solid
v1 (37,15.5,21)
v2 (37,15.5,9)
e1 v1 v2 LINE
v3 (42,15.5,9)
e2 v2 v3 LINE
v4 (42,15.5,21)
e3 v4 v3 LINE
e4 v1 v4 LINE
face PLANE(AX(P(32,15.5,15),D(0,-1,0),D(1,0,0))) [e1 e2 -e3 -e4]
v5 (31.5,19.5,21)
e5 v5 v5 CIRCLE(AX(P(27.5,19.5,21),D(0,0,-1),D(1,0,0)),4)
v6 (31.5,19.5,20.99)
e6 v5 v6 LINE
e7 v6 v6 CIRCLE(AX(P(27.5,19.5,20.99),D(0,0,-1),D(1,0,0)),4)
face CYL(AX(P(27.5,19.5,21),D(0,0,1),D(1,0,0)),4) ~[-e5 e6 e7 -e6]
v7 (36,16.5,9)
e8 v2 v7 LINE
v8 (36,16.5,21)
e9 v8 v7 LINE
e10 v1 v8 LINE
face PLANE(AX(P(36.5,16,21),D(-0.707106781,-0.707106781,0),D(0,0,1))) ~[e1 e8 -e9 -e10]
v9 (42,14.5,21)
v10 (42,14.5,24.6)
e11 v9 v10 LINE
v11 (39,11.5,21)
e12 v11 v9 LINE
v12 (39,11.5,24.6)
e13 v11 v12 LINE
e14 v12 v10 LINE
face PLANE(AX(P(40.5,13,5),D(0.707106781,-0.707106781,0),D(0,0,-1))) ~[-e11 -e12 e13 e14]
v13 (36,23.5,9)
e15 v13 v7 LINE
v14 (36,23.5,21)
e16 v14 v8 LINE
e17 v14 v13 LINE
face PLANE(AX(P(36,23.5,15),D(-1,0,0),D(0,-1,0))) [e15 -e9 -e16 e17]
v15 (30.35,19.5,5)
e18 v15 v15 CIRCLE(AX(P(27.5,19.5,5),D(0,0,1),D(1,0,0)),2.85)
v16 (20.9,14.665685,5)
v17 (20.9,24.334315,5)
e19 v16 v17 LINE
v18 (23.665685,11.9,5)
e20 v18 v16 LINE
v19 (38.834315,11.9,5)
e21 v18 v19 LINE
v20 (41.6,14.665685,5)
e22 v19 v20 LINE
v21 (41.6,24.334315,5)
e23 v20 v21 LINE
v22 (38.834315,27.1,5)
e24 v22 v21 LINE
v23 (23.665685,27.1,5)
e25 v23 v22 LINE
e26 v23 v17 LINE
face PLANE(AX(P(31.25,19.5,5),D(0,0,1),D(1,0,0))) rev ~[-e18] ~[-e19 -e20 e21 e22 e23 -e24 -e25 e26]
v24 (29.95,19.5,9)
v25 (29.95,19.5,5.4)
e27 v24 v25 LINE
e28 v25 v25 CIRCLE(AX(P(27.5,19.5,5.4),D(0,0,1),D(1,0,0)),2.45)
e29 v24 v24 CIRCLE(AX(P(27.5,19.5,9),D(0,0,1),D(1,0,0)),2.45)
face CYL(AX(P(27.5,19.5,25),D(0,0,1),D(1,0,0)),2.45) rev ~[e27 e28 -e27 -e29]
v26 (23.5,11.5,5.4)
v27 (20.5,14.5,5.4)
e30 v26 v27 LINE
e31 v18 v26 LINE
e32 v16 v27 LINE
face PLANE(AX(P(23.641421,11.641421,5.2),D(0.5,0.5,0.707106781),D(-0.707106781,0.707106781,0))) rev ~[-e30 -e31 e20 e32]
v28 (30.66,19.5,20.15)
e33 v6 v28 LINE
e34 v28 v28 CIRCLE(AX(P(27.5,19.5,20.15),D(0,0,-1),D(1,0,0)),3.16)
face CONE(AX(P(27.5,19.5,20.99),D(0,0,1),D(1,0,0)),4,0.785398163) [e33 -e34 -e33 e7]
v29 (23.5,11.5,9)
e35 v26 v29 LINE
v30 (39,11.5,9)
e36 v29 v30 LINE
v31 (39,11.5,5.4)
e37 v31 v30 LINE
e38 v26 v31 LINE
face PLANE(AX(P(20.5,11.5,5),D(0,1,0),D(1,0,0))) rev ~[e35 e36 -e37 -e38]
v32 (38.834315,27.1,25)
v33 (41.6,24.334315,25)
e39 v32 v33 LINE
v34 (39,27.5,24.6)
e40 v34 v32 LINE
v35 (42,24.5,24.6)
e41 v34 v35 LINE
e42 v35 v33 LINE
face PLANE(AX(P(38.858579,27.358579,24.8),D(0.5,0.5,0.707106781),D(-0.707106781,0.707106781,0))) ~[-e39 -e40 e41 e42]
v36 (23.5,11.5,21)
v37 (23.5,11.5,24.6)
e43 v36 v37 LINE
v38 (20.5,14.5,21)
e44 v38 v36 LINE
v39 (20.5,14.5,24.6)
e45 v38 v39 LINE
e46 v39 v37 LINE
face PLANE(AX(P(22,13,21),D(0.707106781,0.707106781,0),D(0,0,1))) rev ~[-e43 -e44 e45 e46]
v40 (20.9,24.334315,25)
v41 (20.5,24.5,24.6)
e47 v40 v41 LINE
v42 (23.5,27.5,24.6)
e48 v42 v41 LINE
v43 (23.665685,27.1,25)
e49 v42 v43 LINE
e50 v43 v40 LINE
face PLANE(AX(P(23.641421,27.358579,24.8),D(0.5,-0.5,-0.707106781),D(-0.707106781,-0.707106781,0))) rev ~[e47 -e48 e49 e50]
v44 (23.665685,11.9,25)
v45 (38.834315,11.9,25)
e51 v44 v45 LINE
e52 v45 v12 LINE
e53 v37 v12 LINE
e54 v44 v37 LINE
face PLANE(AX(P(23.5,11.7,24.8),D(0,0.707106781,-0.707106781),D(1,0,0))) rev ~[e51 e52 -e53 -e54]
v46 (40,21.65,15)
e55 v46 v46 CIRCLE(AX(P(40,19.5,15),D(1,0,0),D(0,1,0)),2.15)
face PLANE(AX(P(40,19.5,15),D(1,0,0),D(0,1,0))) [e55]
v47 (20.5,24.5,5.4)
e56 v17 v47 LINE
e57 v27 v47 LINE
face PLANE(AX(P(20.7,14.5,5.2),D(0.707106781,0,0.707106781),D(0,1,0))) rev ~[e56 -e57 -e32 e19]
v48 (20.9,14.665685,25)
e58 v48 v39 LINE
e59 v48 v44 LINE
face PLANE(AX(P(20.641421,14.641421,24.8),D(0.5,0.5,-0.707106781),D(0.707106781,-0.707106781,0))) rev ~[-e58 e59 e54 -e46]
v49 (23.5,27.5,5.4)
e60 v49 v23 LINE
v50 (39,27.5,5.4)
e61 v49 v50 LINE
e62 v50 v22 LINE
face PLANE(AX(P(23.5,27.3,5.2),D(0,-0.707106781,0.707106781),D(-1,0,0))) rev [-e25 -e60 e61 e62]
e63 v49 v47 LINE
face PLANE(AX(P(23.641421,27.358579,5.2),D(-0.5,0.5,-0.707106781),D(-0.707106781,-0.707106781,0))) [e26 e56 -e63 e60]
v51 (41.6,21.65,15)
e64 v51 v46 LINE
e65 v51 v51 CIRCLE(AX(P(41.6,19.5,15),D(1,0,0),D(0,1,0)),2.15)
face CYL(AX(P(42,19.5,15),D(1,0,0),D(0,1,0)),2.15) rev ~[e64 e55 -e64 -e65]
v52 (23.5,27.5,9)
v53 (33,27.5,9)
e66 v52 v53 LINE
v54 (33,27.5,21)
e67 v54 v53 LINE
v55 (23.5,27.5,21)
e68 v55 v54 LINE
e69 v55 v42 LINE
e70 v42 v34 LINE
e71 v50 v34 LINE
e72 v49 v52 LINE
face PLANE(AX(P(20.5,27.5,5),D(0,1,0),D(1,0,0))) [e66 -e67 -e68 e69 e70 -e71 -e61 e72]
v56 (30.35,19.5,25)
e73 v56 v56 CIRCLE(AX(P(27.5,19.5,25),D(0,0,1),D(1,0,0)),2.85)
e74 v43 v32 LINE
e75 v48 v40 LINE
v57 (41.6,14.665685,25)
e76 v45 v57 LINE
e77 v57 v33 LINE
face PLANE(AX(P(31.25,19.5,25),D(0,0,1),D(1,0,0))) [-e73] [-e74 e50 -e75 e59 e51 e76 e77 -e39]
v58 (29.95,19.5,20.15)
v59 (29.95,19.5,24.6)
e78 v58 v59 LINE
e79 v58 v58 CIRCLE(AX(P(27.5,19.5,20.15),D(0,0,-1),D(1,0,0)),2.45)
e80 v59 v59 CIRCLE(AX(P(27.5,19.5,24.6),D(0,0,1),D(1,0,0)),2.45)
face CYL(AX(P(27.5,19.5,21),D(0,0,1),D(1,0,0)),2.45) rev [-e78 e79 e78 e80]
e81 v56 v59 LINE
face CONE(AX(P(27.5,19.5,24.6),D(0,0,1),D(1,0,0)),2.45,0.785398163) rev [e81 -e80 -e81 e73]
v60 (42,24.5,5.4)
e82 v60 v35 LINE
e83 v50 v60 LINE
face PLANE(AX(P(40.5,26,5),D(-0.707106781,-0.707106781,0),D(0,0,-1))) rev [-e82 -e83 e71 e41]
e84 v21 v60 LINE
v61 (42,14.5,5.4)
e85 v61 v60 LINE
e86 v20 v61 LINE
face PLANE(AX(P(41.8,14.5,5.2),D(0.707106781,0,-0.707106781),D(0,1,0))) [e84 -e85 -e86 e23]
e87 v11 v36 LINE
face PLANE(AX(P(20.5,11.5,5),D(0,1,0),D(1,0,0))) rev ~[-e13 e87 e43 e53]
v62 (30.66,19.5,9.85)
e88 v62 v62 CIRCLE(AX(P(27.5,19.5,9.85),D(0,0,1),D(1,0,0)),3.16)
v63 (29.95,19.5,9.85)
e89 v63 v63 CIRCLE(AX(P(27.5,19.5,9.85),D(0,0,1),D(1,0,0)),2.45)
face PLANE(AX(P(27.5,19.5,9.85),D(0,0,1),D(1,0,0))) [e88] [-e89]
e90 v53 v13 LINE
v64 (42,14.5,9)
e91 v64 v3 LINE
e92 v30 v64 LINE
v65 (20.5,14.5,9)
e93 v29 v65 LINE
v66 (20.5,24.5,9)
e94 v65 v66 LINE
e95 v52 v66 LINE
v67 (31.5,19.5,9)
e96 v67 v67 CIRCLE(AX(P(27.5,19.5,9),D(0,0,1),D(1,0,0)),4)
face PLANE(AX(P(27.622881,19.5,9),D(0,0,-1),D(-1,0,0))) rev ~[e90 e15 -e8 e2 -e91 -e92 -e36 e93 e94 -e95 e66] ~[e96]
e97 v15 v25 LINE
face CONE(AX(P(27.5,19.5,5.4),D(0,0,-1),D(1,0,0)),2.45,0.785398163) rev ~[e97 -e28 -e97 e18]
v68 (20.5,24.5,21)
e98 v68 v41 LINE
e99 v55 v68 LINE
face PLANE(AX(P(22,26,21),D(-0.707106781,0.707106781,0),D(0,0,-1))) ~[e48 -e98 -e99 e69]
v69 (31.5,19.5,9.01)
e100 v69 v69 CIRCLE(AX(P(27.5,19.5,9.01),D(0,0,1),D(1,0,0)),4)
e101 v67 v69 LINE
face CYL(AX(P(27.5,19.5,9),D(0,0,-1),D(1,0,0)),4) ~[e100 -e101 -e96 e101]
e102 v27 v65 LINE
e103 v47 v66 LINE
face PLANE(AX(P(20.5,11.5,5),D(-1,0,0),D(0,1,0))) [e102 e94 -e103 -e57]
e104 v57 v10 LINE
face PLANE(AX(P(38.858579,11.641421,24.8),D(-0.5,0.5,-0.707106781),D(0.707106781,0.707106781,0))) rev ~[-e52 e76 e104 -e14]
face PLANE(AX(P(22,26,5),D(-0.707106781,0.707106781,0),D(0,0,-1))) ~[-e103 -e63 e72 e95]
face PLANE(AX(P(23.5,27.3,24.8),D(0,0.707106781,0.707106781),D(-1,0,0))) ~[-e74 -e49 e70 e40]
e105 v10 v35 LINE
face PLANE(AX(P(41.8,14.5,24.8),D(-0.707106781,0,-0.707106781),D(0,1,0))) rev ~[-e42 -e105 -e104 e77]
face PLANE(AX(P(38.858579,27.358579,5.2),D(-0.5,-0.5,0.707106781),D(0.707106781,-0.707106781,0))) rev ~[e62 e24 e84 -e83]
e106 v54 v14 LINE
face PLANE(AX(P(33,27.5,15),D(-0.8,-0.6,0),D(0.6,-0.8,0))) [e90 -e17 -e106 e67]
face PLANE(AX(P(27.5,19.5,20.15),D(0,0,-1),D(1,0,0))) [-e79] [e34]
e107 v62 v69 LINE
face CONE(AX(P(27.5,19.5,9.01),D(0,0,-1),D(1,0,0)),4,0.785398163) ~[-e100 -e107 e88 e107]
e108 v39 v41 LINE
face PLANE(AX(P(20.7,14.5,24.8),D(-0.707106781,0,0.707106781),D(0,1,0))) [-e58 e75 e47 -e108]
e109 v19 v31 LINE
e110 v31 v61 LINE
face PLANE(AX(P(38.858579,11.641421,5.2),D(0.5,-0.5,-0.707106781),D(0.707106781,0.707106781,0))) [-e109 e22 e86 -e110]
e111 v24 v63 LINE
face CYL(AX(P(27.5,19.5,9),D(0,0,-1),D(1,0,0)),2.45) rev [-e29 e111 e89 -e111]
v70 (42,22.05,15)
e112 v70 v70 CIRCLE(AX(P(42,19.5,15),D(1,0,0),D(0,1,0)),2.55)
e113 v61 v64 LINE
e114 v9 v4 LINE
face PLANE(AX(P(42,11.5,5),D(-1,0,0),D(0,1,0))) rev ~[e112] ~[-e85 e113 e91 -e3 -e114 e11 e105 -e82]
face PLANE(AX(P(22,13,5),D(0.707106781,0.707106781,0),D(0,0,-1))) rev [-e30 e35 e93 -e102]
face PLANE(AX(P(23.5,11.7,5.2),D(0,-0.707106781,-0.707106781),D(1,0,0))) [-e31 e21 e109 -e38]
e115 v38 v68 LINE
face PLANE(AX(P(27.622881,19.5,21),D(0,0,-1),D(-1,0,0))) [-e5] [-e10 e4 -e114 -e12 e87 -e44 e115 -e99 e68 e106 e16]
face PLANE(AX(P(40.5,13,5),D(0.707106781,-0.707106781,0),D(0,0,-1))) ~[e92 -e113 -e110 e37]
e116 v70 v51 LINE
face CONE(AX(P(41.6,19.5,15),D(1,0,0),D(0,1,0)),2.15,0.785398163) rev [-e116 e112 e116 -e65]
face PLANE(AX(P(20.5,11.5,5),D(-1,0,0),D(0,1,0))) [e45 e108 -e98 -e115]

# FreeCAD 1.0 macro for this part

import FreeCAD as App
import Part
import Sketcher


def edges_at(feature, points):
    """Names of the edges that pass closest to the given points."""
    edges = feature.Shape.Edges
    near = lambda p: min(range(len(edges)), key=lambda i: edges[i].distToShape(Part.Vertex(*p))[0])
    return sorted({f"Edge{near(p) + 1}" for p in points})


def add_polygon(sketch, points):
    """Adds a closed chain of lines whose ends are joined by coincident constraints."""
    first, n = sketch.GeometryCount, len(points)
    for a, b in zip(points, points[1:] + points[:1]):
        sketch.addGeometry(Part.LineSegment(App.Vector(*a, 0), App.Vector(*b, 0)), False)
    for i in range(n):
        sketch.addConstraint(Sketcher.Constraint("Coincident", first + i, 2, first + (i + 1) % n, 1))

doc = App.newDocument("Part")
body = doc.addObject("PartDesign::Body", "Body")

sketch1 = body.newObject("Sketcher::SketchObject", "Sketch")
sketch1.AttachmentSupport = (doc.getObject("XY_Plane"), [""])
sketch1.MapMode = "FlatFace"
add_polygon(sketch1, [(-7, 8), (-7, -8), (14.5, -8), (14.5, 8)])
sketch1.addConstraint([
    Sketcher.Constraint("Vertical", 0),
    Sketcher.Constraint("Horizontal", 1),
    Sketcher.Constraint("Vertical", 2),
    Sketcher.Constraint("Horizontal", 3),
    Sketcher.Constraint("DistanceY", 0, 2, 0, 1, 16.0),
    Sketcher.Constraint("DistanceX", 1, 1, 1, 2, 21.5),
    Sketcher.Constraint("DistanceX", 0, 2, -1, 1, 7.0),
    Sketcher.Constraint("DistanceY", 0, 2, -1, 1, 8.0),
])
pad1 = body.newObject("PartDesign::Pad", "Pad")
pad1.Profile = sketch1
pad1.Length = 20

sketch2 = body.newObject("Sketcher::SketchObject", "Sketch001")
sketch2.AttachmentSupport = (doc.getObject("XY_Plane"), [""])
sketch2.MapMode = "FlatFace"
sketch2.AttachmentOffset = App.Placement(App.Vector(0, 0, 10), App.Rotation())
add_polygon(sketch2, [(5.5, 8), (-7, 8), (-7, -8), (5.5, -8), (8.5, -4), (8.5, 4)])
sketch2.addConstraint([
    Sketcher.Constraint("Horizontal", 0),
    Sketcher.Constraint("Vertical", 1),
    Sketcher.Constraint("Horizontal", 2),
    Sketcher.Constraint("Vertical", 4),
    Sketcher.Constraint("Symmetric", 2, 2, 5, 2, -1),
    Sketcher.Constraint("Equal", 3, 5),
    Sketcher.Constraint("DistanceY", 1, 2, 1, 1, 16.0),
    Sketcher.Constraint("DistanceY", 4, 1, 4, 2, 8.0),
    Sketcher.Constraint("Distance", 3, 5.0),
    Sketcher.Constraint("DistanceX", 0, 2, 0, 1, 12.5),
    Sketcher.Constraint("DistanceX", 0, 2, -1, 1, 7.0),
])
pocket1 = body.newObject("PartDesign::Pocket", "Pocket")
pocket1.Profile = sketch2
pocket1.Length = 12
pocket1.Midplane = True

sketch3 = body.newObject("Sketcher::SketchObject", "Sketch002")
sketch3.AttachmentSupport = (doc.getObject("XY_Plane"), [""])
sketch3.MapMode = "FlatFace"
sketch3.AttachmentOffset = App.Placement(App.Vector(0, 0, 20), App.Rotation())
sketch3.addGeometry(Part.Circle(App.Vector(0, 0, 0), App.Vector(0, 0, 1), 2.45), False)
sketch3.addConstraint([
    Sketcher.Constraint("Coincident", 0, 3, -1, 1),
    Sketcher.Constraint("Diameter", 0, 4.9),
])
pocket2 = body.newObject("PartDesign::Pocket", "Pocket001")
pocket2.Profile = sketch3
pocket2.Type = "ThroughAll"

sketch4 = body.newObject("Sketcher::SketchObject", "Sketch003")
sketch4.AttachmentSupport = (doc.getObject("XY_Plane"), [""])
sketch4.MapMode = "FlatFace"
sketch4.AttachmentOffset = App.Placement(App.Vector(0, 0, 4), App.Rotation())
sketch4.addGeometry([
    Part.Circle(App.Vector(0, 0, 0), App.Vector(0, 0, 1), 4),
    Part.Circle(App.Vector(0, 0, 0), App.Vector(0, 0, 1), 2.45),
], False)
sketch4.addConstraint([
    Sketcher.Constraint("Coincident", 0, 3, -1, 1),
    Sketcher.Constraint("Coincident", 1, 3, -1, 1),
    Sketcher.Constraint("Diameter", 0, 8.0),
    Sketcher.Constraint("Diameter", 1, 4.9),
])
pad2 = body.newObject("PartDesign::Pad", "Pad001")
pad2.Profile = sketch4
pad2.Length = 0.85

sketch5 = body.newObject("Sketcher::SketchObject", "Sketch004")
sketch5.AttachmentSupport = (doc.getObject("XY_Plane"), [""])
sketch5.MapMode = "FlatFace"
sketch5.AttachmentOffset = App.Placement(App.Vector(0, 0, 16), App.Rotation())
sketch5.addGeometry([
    Part.Circle(App.Vector(0, 0, 0), App.Vector(0, 0, 1), 4),
    Part.Circle(App.Vector(0, 0, 0), App.Vector(0, 0, 1), 2.45),
], False)
sketch5.addConstraint([
    Sketcher.Constraint("Coincident", 0, 3, -1, 1),
    Sketcher.Constraint("Coincident", 1, 3, -1, 1),
    Sketcher.Constraint("Diameter", 0, 8.0),
    Sketcher.Constraint("Diameter", 1, 4.9),
])
pad3 = body.newObject("PartDesign::Pad", "Pad002")
pad3.Profile = sketch5
pad3.Length = 0.85
pad3.Reversed = True
doc.recompute()

chamfer = body.newObject("PartDesign::Chamfer", "Chamfer")
chamfer.Base = (pad3, edges_at(pad3, [(-4, 0, 4.85), (-4, 0, 15.15)]))
chamfer.Size = 0.84
doc.recompute()

chamfer2 = body.newObject("PartDesign::Chamfer", "Chamfer001")
chamfer2.Base = (chamfer, edges_at(chamfer, [
    (-7, 8, 2),
    (-7, -8, 2),
    (-7, 8, 18),
    (-7, -8, 18),
]))
chamfer2.Size = 3
doc.recompute()

chamfer3 = body.newObject("PartDesign::Chamfer", "Chamfer002")
chamfer3.Base = (chamfer2, edges_at(chamfer2, [(14.5, -8, 10), (14.5, 8, 10)]))
chamfer3.Size = 3
doc.recompute()

chamfer4 = body.newObject("PartDesign::Chamfer", "Chamfer003")
chamfer4.Base = (chamfer3, edges_at(chamfer3, [
    (3.75, 8, 20),
    (13, 6.5, 20),
    (-5.5, 6.5, 20),
    (14.5, 0, 20),
    (-7, 0, 20),
    (13, -6.5, 20),
    (-5.5, -6.5, 20),
    (3.75, -8, 20),
    (-2.45, 0, 20),
    (3.75, 8, 0),
    (13, 6.5, 0),
    (-5.5, 6.5, 0),
    (14.5, 0, 0),
    (-7, 0, 0),
    (13, -6.5, 0),
    (-5.5, -6.5, 0),
    (3.75, -8, 0),
    (-2.45, 0, 0),
]))
chamfer4.Size = 0.4

sketch6 = body.newObject("Sketcher::SketchObject", "Sketch005")
sketch6.AttachmentSupport = (doc.getObject("XY_Plane"), [""])
sketch6.MapMode = "FlatFace"
sketch6.AttachmentOffset = App.Placement(App.Vector(0, 0, 10), App.Rotation())
add_polygon(sketch6, [(4.5, -4), (4.5, -8), (14.5, -8), (14.5, -4)])
sketch6.addConstraint([
    Sketcher.Constraint("Vertical", 0),
    Sketcher.Constraint("Horizontal", 1),
    Sketcher.Constraint("Vertical", 2),
    Sketcher.Constraint("Horizontal", 3),
    Sketcher.Constraint("DistanceX", 1, 1, 1, 2, 10.0),
    Sketcher.Constraint("DistanceY", 0, 2, 0, 1, 4.0),
    Sketcher.Constraint("DistanceY", 0, 2, -1, 1, 8.0),
    Sketcher.Constraint("DistanceX", -1, 1, 0, 2, 4.5),
])
pocket3 = body.newObject("PartDesign::Pocket", "Pocket002")
pocket3.Profile = sketch6
pocket3.Length = 12
pocket3.Midplane = True

sketch7 = body.newObject("Sketcher::SketchObject", "Sketch006")
sketch7.AttachmentSupport = (doc.getObject("YZ_Plane"), [""])
sketch7.MapMode = "FlatFace"
sketch7.AttachmentOffset = App.Placement(App.Vector(0, 0, 14.5), App.Rotation())
sketch7.addGeometry(Part.Circle(App.Vector(0, 10, 0), App.Vector(0, 0, 1), 2.15), False)
sketch7.addConstraint([
    Sketcher.Constraint("PointOnObject", 0, 3, -2),
    Sketcher.Constraint("Diameter", 0, 4.3),
    Sketcher.Constraint("DistanceY", -1, 1, 0, 3, 10.0),
])
pocket4 = body.newObject("PartDesign::Pocket", "Pocket003")
pocket4.Profile = sketch7
pocket4.Length = 2
doc.recompute()

chamfer5 = body.newObject("PartDesign::Chamfer", "Chamfer004")
chamfer5.Base = (pocket4, edges_at(pocket4, [(14.5, -2.15, 10)]))
chamfer5.Size = 0.4
doc.recompute()

chamfer6 = body.newObject("PartDesign::Chamfer", "Chamfer005")
chamfer6.Base = (chamfer5, edges_at(chamfer5, [(8.5, -4, 10)]))
chamfer6.Size = 1
body2 = doc.addObject("PartDesign::Body", "Body001")
doc.recompute()

body.Placement = App.Placement(App.Vector(27.5, 19.5, 5), App.Rotation(App.Vector(0, 0, 1), 0))
boolean = body2.newObject("PartDesign::Boolean", "Boolean")
boolean.Type = "Fuse"
boolean.addObjects([body])

doc.recompute()
